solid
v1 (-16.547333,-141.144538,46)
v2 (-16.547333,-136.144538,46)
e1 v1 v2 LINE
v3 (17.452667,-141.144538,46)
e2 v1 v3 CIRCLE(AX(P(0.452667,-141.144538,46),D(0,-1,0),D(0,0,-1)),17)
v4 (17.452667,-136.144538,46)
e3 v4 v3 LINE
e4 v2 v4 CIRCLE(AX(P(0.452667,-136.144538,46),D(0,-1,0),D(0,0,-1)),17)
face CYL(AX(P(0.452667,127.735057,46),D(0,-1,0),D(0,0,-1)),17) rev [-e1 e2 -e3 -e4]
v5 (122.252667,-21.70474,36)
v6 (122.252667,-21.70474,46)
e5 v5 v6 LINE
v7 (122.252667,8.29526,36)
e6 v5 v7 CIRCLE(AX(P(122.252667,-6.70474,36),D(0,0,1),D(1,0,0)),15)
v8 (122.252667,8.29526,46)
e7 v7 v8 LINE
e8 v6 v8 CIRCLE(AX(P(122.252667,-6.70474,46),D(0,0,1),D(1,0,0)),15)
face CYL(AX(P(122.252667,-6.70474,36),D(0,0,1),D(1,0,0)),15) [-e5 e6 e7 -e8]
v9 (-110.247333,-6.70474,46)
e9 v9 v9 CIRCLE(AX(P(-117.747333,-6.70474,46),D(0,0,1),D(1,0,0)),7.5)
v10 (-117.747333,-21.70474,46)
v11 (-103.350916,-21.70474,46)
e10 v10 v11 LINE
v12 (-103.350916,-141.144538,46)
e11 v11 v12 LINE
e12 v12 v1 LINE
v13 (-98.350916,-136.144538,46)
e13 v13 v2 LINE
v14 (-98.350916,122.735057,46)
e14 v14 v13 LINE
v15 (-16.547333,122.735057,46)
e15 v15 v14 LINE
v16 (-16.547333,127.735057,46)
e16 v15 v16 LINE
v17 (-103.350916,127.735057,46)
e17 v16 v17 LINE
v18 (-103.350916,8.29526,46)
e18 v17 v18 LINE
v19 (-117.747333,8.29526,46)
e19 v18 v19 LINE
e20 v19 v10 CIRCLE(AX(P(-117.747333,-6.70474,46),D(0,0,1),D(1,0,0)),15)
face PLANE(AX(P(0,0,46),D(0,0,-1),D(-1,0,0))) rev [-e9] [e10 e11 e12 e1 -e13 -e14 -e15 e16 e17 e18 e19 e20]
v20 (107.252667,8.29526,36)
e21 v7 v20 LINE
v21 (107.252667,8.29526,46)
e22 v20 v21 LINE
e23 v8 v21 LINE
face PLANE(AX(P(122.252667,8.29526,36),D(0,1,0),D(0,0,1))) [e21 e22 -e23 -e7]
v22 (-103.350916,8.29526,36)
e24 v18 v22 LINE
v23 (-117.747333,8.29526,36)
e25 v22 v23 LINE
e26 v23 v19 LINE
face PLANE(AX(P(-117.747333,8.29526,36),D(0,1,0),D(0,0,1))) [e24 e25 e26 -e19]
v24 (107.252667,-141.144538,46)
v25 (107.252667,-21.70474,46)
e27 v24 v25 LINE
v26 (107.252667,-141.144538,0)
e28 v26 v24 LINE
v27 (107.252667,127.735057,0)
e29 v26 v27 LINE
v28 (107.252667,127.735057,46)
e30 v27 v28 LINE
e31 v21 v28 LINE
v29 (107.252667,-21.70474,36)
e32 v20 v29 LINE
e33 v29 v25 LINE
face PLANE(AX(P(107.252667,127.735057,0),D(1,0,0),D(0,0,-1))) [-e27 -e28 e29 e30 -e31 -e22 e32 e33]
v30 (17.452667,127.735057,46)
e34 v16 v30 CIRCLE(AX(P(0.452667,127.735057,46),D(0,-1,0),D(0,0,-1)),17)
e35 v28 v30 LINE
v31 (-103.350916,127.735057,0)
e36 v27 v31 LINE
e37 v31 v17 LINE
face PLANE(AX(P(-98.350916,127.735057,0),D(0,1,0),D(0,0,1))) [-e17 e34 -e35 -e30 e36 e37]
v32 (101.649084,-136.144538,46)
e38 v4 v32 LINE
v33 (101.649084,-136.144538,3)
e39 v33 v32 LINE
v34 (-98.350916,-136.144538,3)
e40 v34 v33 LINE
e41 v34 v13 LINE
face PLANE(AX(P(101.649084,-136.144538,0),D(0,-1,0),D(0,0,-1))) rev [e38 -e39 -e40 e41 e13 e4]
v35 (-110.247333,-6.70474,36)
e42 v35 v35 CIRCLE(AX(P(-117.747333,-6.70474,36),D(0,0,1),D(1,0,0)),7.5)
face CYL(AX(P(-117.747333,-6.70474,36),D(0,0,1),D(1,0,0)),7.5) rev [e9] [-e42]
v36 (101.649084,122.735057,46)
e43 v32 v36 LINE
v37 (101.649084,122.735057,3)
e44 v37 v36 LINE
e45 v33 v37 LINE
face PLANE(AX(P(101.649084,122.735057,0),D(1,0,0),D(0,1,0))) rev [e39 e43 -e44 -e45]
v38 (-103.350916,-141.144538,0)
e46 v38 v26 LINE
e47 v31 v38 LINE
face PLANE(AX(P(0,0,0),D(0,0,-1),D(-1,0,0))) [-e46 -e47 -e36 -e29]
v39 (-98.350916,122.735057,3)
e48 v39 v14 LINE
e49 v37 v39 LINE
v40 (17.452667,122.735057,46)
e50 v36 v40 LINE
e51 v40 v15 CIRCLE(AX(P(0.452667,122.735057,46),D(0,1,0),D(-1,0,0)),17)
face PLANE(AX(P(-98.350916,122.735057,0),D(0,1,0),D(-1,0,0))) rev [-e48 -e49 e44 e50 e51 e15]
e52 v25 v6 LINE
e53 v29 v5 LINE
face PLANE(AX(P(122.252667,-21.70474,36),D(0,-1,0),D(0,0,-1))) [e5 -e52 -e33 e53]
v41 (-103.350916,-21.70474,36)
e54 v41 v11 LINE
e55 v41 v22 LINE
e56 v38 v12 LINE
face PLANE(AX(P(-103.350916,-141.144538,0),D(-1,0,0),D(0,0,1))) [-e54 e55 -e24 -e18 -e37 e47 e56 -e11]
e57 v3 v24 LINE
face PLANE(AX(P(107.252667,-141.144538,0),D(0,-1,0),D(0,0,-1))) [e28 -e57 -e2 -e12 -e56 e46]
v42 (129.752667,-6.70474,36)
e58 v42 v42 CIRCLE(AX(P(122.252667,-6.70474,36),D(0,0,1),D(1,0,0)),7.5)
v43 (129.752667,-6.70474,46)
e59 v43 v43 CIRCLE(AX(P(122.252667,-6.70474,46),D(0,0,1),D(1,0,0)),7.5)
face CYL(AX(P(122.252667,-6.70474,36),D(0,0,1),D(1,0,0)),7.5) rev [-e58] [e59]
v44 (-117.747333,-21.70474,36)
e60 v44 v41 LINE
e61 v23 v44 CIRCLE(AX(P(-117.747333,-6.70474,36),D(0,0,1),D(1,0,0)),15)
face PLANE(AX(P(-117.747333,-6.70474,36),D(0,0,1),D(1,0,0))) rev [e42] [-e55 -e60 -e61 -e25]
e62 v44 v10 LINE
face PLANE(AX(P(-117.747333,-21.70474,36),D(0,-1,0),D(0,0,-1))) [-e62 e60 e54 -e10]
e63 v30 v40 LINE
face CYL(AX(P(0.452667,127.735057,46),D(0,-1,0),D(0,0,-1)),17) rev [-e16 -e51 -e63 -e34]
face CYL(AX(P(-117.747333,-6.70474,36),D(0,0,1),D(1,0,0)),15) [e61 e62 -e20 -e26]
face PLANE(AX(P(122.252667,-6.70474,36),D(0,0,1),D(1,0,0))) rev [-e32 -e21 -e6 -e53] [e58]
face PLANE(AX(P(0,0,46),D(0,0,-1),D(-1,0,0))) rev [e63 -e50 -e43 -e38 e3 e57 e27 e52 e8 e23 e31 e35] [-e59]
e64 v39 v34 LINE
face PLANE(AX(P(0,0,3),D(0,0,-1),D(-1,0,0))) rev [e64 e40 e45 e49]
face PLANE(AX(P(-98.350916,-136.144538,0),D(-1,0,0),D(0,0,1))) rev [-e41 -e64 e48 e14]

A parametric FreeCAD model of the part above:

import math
import FreeCAD as App
import Part
import Sketcher
Q = App.Units.Quantity

doc = App.newDocument("Part")
body = doc.addObject("PartDesign::Body", "Body")

# Sketch on XY plane
sketch1 = body.newObject("Sketcher::SketchObject", "Sketch")
sketch1.AttachmentSupport = (doc.getObject("XY_Plane"), [""])
sketch1.MapMode = "FlatFace"
sketch1.addGeometry([
    Part.LineSegment(App.Vector(102, -136, 0), App.Vector(102, 123, 0)),
    Part.LineSegment(App.Vector(102, 123, 0), App.Vector(-98, 123, 0)),
    Part.LineSegment(App.Vector(-98, 123, 0), App.Vector(-98, -136, 0)),
    Part.LineSegment(App.Vector(-98, -136, 0), App.Vector(102, -136, 0)),
], False)
sketch1.addConstraint([
    Sketcher.Constraint("Coincident", 0, 2, 1, 1),
    Sketcher.Constraint("Coincident", 1, 2, 2, 1),
    Sketcher.Constraint("Coincident", 2, 2, 3, 1),
    Sketcher.Constraint("Coincident", 3, 2, 0, 1),
    Sketcher.Constraint("Vertical", 0),
    Sketcher.Constraint("Horizontal", 1),
    Sketcher.Constraint("Vertical", 2),
    Sketcher.Constraint("Horizontal", 3),
    Sketcher.Constraint("DistanceX", 1, 2, 1, 1, Q("200 mm")),
    Sketcher.Constraint("DistanceY", 0, 1, 0, 2, Q("258.879595 mm")),
    Sketcher.Constraint("DistanceX", -1, 1, 0, 2, Q("101.649084 mm")),
    Sketcher.Constraint("DistanceY", -1, 1, 0, 2, Q("122.735057 mm")),
])
pad1 = body.newObject("PartDesign::Pad", "Pad")
pad1.Profile = sketch1
pad1.Length = 3

# Sketch on XY plane
sketch2 = body.newObject("Sketcher::SketchObject", "Sketch001")
sketch2.AttachmentSupport = (doc.getObject("XY_Plane"), [""])
sketch2.MapMode = "FlatFace"
sketch2.AttachmentOffset = App.Placement(App.Vector(0, 0, 3), App.Rotation())
sketch2.addGeometry([
    Part.LineSegment(App.Vector(-103, 128, 0), App.Vector(-103, -141, 0)),  # 0
    Part.LineSegment(App.Vector(-103, -141, 0), App.Vector(107, -141, 0)),  # 1
    Part.LineSegment(App.Vector(107, -141, 0), App.Vector(107, 128, 0)),  # 2
    Part.LineSegment(App.Vector(107, 128, 0), App.Vector(-103, 128, 0)),  # 3
    Part.LineSegment(App.Vector(102, -136, 0), App.Vector(-98, -136, 0)),  # 4
    Part.LineSegment(App.Vector(-98, -136, 0), App.Vector(-98, 123, 0)),  # 5
    Part.LineSegment(App.Vector(-98, 123, 0), App.Vector(102, 123, 0)),  # 6
    Part.LineSegment(App.Vector(102, 123, 0), App.Vector(102, -136, 0)),  # 7
], False)
sketch2.addConstraint([
    Sketcher.Constraint("Coincident", 0, 2, 1, 1),
    Sketcher.Constraint("Coincident", 1, 2, 2, 1),
    Sketcher.Constraint("Coincident", 2, 2, 3, 1),
    Sketcher.Constraint("Coincident", 3, 2, 0, 1),
    Sketcher.Constraint("Coincident", 4, 2, 5, 1),
    Sketcher.Constraint("Coincident", 5, 2, 6, 1),
    Sketcher.Constraint("Coincident", 6, 2, 7, 1),
    Sketcher.Constraint("Coincident", 7, 2, 4, 1),
    Sketcher.Constraint("Vertical", 0),
    Sketcher.Constraint("Horizontal", 1),
    Sketcher.Constraint("Vertical", 2),
    Sketcher.Constraint("Horizontal", 3),
    Sketcher.Constraint("Horizontal", 4),
    Sketcher.Constraint("Vertical", 5),
    Sketcher.Constraint("Horizontal", 6),
    Sketcher.Constraint("Vertical", 7),
    Sketcher.Constraint("DistanceX", 4, 2, 4, 1, Q("200 mm")),
    Sketcher.Constraint("DistanceX", 0, 2, 4, 2, Q("5 mm")),
    Sketcher.Constraint("DistanceY", 0, 2, 4, 2, Q("5 mm")),
    Sketcher.Constraint("DistanceY", 5, 2, 3, 2, Q("5 mm")),
    Sketcher.Constraint("DistanceX", 1, 1, 1, 2, Q("210.603583 mm")),
    Sketcher.Constraint("DistanceY", 0, 2, 0, 1, Q("268.879595 mm")),
    Sketcher.Constraint("DistanceX", 0, 2, -1, 1, Q("103.350916 mm")),
    Sketcher.Constraint("DistanceY", 0, 2, -1, 1, Q("141.144538 mm")),
])
pad2 = body.newObject("PartDesign::Pad", "Pad001")
pad2.Profile = sketch2
pad2.Type = "TwoLengths"
pad2.Length = 43
pad2.Length2 = 3

# Sketch on XZ plane
sketch3 = body.newObject("Sketcher::SketchObject", "Sketch002")
sketch3.AttachmentSupport = (doc.getObject("XZ_Plane"), [""])
sketch3.MapMode = "FlatFace"
sketch3.AttachmentOffset = App.Placement(App.Vector(0, 0, 141.144538), App.Rotation())
sketch3.addGeometry(Part.Circle(App.Vector(0, 46, 0), App.Vector(0, 0, 1), 17), False)
sketch3.addConstraint([
    Sketcher.Constraint("Diameter", 0, Q("34 mm")),
    Sketcher.Constraint("DistanceY", -1, 1, 0, 3, Q("46 mm")),
    Sketcher.Constraint("DistanceX", -1, 1, 0, 3, Q("0.452667 mm")),
])
pocket1 = body.newObject("PartDesign::Pocket", "Pocket")
pocket1.Profile = sketch3
pocket1.Type = "ThroughAll"
pocket1.Midplane = True

# Sketch on XY plane
sketch4 = body.newObject("Sketcher::SketchObject", "Sketch003")
sketch4.AttachmentSupport = (doc.getObject("XY_Plane"), [""])
sketch4.MapMode = "FlatFace"
sketch4.AttachmentOffset = App.Placement(App.Vector(0, 0, 46), App.Rotation())
sketch4.addGeometry([
    Part.LineSegment(App.Vector(107, 8, 0), App.Vector(107, -22, 0)),  # 0
    Part.LineSegment(App.Vector(107, -22, 0), App.Vector(122, -22, 0)),  # 1
    Part.ArcOfCircle(Part.Circle(App.Vector(122, -7, 0), App.Vector(0, 0, 1), 15), math.radians(-90), math.radians(90)),  # 2
    Part.LineSegment(App.Vector(122, 8, 0), App.Vector(107, 8, 0)),  # 3
    Part.Circle(App.Vector(122, -7, 0), App.Vector(0, 0, 1), 8),  # 4
    Part.LineSegment(App.Vector(-103, -22, 0), App.Vector(-103, 8, 0)),  # 5
    Part.LineSegment(App.Vector(-103, 8, 0), App.Vector(-118, 8, 0)),  # 6
    Part.ArcOfCircle(Part.Circle(App.Vector(-118, -7, 0), App.Vector(0, 0, 1), 15), math.radians(90), math.radians(270)),  # 7
    Part.LineSegment(App.Vector(-118, -22, 0), App.Vector(-103, -22, 0)),  # 8
    Part.Circle(App.Vector(-118, -7, 0), App.Vector(0, 0, 1), 8),  # 9
], False)
sketch4.addConstraint([
    Sketcher.Constraint("Coincident", 0, 2, 1, 1),
    Sketcher.Constraint("Tangent", 1, 2, 2, 1),
    Sketcher.Constraint("Tangent", 2, 2, 3, 1),
    Sketcher.Constraint("Coincident", 3, 2, 0, 1),
    Sketcher.Constraint("Coincident", 5, 2, 6, 1),
    Sketcher.Constraint("Tangent", 6, 2, 7, 1),
    Sketcher.Constraint("Tangent", 7, 2, 8, 1),
    Sketcher.Constraint("Coincident", 8, 2, 5, 1),
    Sketcher.Constraint("Vertical", 0),
    Sketcher.Constraint("Horizontal", 1),
    Sketcher.Constraint("Horizontal", 3),
    Sketcher.Constraint("Vertical", 5),
    Sketcher.Constraint("Horizontal", 6),
    Sketcher.Constraint("Horizontal", 8),
    Sketcher.Constraint("Coincident", 4, 3, 2, 3),
    Sketcher.Constraint("Coincident", 9, 3, 7, 3),
    Sketcher.Constraint("Equal", 2, 7),
    Sketcher.Constraint("Equal", 4, 9),
    Sketcher.Constraint("Horizontal", 4, 3, 7, 3),
    Sketcher.Constraint("Equal", 3, 6),
    Sketcher.Constraint("Diameter", 4, Q("15 mm")),
    Sketcher.Constraint("Radius", 2, Q("15 mm")),
    Sketcher.Constraint("DistanceX", 1, 1, 1, 2, Q("15 mm")),
    Sketcher.Constraint("DistanceX", 7, 3, 2, 3, Q("240 mm")),
    Sketcher.Constraint("DistanceY", 2, 3, -1, 1, Q("6.70474 mm")),
    Sketcher.Constraint("DistanceX", -1, 1, 2, 3, Q("122.252667 mm")),
])
pad3 = body.newObject("PartDesign::Pad", "Pad002")
pad3.Profile = sketch4
pad3.Length = 10
pad3.Reversed = True

doc.recompute()
